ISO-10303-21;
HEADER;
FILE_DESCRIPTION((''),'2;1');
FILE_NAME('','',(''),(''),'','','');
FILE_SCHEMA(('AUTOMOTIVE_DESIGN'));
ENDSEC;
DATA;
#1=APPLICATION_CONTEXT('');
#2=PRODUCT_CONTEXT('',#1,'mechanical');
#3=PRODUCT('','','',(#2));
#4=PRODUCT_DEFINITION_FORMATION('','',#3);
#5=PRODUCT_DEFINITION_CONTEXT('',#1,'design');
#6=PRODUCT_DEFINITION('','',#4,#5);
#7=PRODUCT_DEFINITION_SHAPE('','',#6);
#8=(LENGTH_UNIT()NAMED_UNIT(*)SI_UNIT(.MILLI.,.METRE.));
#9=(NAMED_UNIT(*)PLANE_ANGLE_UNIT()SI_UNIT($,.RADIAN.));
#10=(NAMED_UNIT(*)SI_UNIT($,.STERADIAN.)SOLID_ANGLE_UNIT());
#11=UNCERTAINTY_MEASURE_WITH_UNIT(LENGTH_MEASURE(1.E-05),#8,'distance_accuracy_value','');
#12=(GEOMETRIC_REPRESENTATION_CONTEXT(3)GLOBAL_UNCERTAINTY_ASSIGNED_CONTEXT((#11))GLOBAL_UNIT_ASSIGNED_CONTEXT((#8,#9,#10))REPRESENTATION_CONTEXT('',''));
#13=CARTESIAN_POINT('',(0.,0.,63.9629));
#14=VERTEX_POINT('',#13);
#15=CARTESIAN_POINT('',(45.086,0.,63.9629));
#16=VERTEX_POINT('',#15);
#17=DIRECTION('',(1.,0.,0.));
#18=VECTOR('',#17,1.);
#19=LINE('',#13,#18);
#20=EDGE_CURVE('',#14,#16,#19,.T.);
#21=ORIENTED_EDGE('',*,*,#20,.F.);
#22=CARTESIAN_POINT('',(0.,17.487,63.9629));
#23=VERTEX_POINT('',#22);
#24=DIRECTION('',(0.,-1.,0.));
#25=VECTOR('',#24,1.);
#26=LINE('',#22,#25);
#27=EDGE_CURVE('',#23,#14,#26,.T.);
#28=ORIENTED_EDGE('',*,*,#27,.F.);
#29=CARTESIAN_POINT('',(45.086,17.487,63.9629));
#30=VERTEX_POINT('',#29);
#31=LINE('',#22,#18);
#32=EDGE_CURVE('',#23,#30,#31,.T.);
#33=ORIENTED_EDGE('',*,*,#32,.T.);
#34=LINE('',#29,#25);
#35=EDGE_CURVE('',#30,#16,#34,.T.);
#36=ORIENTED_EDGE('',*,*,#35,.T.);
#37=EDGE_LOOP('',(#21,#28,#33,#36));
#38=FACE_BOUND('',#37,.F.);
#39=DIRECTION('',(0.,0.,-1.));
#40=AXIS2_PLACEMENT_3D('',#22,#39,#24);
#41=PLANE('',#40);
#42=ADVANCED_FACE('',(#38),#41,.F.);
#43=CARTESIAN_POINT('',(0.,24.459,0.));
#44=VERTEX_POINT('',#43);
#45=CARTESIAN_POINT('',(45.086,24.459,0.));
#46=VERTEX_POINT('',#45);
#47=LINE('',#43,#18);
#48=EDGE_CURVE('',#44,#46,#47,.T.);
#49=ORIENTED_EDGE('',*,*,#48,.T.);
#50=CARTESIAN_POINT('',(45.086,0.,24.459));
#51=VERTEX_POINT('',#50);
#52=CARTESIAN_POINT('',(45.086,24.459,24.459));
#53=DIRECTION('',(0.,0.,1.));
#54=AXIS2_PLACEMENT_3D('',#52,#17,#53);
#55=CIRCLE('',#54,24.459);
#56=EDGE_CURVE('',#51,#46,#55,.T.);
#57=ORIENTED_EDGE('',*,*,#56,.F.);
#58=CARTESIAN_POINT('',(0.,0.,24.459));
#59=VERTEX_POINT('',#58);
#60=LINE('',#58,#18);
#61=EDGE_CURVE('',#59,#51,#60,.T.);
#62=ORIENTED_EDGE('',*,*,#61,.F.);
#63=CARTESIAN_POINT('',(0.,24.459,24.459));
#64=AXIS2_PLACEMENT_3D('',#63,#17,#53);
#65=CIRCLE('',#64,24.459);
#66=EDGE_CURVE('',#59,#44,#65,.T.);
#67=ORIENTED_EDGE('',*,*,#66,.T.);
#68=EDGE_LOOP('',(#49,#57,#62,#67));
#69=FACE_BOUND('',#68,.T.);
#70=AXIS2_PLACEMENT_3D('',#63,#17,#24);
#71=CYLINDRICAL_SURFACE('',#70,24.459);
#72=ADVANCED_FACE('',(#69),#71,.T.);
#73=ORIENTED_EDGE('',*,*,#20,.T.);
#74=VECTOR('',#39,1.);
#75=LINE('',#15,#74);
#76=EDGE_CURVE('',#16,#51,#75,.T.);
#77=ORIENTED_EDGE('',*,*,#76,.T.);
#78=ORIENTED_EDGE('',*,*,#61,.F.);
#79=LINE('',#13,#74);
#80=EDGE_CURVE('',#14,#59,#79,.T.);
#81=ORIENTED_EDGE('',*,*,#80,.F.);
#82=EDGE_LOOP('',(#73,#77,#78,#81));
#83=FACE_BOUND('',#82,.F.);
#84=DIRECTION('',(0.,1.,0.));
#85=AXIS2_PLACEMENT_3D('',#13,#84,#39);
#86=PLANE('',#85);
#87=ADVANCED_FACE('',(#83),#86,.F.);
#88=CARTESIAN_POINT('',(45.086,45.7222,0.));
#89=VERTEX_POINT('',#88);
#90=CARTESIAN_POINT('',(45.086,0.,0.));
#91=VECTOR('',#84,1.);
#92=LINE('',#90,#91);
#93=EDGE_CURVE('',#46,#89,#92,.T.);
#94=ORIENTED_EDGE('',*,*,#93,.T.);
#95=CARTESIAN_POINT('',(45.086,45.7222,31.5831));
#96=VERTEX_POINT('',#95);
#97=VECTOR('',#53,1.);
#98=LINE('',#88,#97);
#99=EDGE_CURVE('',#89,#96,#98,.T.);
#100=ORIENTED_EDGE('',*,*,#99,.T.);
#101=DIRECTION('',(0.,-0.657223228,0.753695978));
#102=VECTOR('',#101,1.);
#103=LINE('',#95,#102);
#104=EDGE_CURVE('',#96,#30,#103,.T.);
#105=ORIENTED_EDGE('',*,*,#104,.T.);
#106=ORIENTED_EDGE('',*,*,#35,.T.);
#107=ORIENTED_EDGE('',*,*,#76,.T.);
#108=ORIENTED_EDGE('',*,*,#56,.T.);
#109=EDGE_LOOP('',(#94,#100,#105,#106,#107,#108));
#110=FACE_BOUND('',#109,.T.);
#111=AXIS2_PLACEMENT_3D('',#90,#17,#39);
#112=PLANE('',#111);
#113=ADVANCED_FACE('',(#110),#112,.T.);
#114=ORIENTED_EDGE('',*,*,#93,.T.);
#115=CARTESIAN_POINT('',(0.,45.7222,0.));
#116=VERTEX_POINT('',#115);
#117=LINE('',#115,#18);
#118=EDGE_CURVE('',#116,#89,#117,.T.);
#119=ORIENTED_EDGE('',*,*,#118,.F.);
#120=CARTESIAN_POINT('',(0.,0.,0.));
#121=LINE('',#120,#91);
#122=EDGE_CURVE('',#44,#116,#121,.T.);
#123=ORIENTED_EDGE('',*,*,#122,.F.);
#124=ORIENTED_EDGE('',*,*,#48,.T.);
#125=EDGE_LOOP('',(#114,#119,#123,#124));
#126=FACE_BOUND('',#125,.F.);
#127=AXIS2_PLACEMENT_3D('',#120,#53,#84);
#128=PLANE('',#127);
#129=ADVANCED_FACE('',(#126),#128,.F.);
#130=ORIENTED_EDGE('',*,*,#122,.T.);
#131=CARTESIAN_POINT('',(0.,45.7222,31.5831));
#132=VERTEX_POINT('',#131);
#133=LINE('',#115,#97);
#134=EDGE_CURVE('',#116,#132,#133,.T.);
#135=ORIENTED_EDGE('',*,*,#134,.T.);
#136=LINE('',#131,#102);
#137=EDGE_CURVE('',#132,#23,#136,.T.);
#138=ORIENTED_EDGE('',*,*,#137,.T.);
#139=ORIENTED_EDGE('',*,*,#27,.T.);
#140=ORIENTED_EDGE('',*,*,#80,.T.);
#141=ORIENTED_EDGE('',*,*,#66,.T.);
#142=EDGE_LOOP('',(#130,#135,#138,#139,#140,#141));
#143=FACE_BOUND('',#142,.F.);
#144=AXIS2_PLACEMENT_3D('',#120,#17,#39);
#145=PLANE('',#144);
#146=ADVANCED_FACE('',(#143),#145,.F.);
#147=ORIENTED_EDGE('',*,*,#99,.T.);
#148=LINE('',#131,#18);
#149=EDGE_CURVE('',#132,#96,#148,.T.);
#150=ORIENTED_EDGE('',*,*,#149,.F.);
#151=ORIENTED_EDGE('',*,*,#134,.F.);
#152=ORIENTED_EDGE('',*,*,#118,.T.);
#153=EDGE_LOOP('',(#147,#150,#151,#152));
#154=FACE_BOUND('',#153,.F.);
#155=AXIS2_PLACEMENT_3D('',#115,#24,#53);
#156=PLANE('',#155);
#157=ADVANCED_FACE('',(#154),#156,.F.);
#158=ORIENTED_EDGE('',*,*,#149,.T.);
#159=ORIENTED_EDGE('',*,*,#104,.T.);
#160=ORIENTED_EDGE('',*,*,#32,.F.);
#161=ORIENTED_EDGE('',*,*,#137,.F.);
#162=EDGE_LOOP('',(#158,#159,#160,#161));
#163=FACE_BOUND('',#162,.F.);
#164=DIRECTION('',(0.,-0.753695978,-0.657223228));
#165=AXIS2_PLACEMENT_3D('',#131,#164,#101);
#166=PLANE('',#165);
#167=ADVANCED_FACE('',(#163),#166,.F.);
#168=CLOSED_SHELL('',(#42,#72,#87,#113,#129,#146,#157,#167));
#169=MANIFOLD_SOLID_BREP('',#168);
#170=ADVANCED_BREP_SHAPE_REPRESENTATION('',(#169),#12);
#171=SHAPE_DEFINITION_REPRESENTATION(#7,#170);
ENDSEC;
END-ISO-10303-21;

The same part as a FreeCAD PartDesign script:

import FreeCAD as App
import Part
import Sketcher

V = App.Vector
Q = App.Units.Quantity


def edges_at(feature, points):
    """Names of the edges that pass closest to the given points."""
    edges = feature.Shape.Edges
    near = lambda p: min(range(len(edges)), key=lambda i: edges[i].distToShape(Part.Vertex(*p))[0])
    return sorted({f"Edge{near(p) + 1}" for p in points})

doc = App.newDocument("Part")
body = doc.addObject("PartDesign::Body", "Body")

# Sketch on YZ plane
sketch1 = body.newObject("Sketcher::SketchObject", "Sketch")
sketch1.AttachmentSupport = (doc.getObject("YZ_Plane"), [""])
sketch1.MapMode = "FlatFace"
sketch1.addGeometry([
    Part.LineSegment(V(0, 63.9629, 0), V(0, 0, 0)),  # 0
    Part.LineSegment(V(0, 0, 0), V(45.7222, 0, 0)),  # 1
    Part.LineSegment(V(45.7222, 0, 0), V(45.7222, 31.5831, 0)),  # 2
    Part.LineSegment(V(45.7222, 31.5831, 0), V(17.487, 63.9629, 0)),  # 3
    Part.LineSegment(V(17.487, 63.9629, 0), V(0, 63.9629, 0)),  # 4
], False)
sketch1.addConstraint([
    Sketcher.Constraint("Coincident", 0, 2, 1, 1),
    Sketcher.Constraint("Coincident", 1, 2, 2, 1),
    Sketcher.Constraint("Coincident", 2, 2, 3, 1),
    Sketcher.Constraint("Coincident", 3, 2, 4, 1),
    Sketcher.Constraint("Coincident", 4, 2, 0, 1),
    Sketcher.Constraint("Vertical", 0),
    Sketcher.Constraint("Horizontal", 1),
    Sketcher.Constraint("Vertical", 2),
    Sketcher.Constraint("Horizontal", 4),
    Sketcher.Constraint("Coincident", 0, 2, -1, 1),
    Sketcher.Constraint("DistanceX", 4, 2, 4, 1, Q("17.487 mm")),
    Sketcher.Constraint("DistanceY", 0, 2, 0, 1, Q("63.963 mm")),
    Sketcher.Constraint("DistanceY", 2, 1, 2, 2, Q("31.583 mm")),
    Sketcher.Constraint("DistanceX", 1, 1, 1, 2, Q("45.7222 mm")),
])
pad1 = body.newObject("PartDesign::Pad", "Pad")
pad1.Profile = sketch1
pad1.Length = 45.086
doc.recompute()

fillet = body.newObject("PartDesign::Fillet", "Fillet")
fillet.Base = (pad1, edges_at(pad1, [(22.543, 0, 0)]))
fillet.Radius = 24.459

doc.recompute()
